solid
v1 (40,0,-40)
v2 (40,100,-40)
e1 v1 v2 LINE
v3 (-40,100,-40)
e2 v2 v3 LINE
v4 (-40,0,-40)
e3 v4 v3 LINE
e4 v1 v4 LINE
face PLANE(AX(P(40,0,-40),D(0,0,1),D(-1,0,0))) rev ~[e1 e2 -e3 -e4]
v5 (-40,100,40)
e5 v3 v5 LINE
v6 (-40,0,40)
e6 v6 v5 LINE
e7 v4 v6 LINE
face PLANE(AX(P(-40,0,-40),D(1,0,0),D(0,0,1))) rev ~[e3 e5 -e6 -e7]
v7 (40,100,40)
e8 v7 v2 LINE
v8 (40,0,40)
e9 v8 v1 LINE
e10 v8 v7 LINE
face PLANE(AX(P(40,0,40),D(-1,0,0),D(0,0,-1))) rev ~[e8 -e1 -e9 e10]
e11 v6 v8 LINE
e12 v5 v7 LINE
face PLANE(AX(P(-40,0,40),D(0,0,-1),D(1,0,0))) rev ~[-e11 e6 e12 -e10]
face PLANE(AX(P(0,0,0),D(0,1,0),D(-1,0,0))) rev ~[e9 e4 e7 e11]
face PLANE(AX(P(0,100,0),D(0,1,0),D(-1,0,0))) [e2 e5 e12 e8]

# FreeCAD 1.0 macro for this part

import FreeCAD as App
import Part
import Sketcher

V = App.Vector
Q = App.Units.Quantity


def add_polygon(sketch, points):
    """Adds a closed chain of lines whose ends are joined by coincident constraints."""
    first, n = sketch.GeometryCount, len(points)
    for a, b in zip(points, points[1:] + points[:1]):
        sketch.addGeometry(Part.LineSegment(App.Vector(*a, 0), App.Vector(*b, 0)), False)
    for i in range(n):
        sketch.addConstraint(Sketcher.Constraint("Coincident", first + i, 2, first + (i + 1) % n, 1))

doc = App.newDocument("Part")
body = doc.addObject("PartDesign::Body", "Body")

sketch1 = body.newObject("Sketcher::SketchObject", "Sketch")
sketch1.AttachmentSupport = (doc.getObject("XZ_Plane"), [""])
sketch1.MapMode = "FlatFace"
add_polygon(sketch1, [(-40, -40), (-40, 40), (40, 40), (40, -40)])
sketch1.addConstraint(Sketcher.Constraint("Vertical", 0))
sketch1.addConstraint(Sketcher.Constraint("Horizontal", 1))
sketch1.addConstraint(Sketcher.Constraint("Vertical", 2))
sketch1.addConstraint(Sketcher.Constraint("Horizontal", 3))
sketch1.addConstraint(Sketcher.Constraint("Symmetric", 0, 2, 2, 2, -1, 1))
sketch1.addConstraint(Sketcher.Constraint("Equal", 3, 0))
sketch1.addConstraint(Sketcher.Constraint("DistanceX", 1, 1, 1, 2, Q("3.1496 in")))
pad1 = body.newObject("PartDesign::Pad", "Pad")
pad1.Profile = sketch1
pad1.Length = Q("3.9370079 in")
pad1.Reversed = True

doc.recompute()
